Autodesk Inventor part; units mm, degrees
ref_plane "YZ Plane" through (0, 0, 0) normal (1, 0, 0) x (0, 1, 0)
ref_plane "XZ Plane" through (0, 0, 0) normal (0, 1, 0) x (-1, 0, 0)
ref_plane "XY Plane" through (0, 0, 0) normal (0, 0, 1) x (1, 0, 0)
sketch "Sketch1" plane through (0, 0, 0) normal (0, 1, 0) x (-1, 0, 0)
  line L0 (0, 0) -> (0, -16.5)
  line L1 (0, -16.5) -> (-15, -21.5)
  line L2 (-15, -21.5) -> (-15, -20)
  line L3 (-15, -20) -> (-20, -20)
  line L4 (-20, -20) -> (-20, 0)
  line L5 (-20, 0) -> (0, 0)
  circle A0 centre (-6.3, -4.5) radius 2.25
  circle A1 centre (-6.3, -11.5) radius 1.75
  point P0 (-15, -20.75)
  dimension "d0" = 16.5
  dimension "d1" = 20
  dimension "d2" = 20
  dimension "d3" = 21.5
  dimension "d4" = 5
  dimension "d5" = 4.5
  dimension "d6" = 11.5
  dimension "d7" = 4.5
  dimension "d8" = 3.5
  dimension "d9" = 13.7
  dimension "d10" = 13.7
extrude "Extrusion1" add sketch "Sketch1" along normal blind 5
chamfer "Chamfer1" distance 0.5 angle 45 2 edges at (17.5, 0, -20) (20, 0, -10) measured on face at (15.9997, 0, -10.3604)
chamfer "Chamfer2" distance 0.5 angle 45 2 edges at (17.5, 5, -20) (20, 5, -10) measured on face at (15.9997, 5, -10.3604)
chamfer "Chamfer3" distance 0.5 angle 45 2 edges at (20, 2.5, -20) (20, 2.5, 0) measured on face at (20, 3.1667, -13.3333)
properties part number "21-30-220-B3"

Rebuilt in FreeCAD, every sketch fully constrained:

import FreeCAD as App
import Part
import Sketcher
Q = App.Units.Quantity


def edges_at(feature, points):
    """Names of the edges that pass closest to the given points."""
    edges = feature.Shape.Edges
    near = lambda p: min(range(len(edges)), key=lambda i: edges[i].distToShape(Part.Vertex(*p))[0])
    return sorted({f"Edge{near(p) + 1}" for p in points})

doc = App.newDocument("Part")
body = doc.addObject("PartDesign::Body", "Body")

# Sketch on XZ plane
sketch1 = doc.addObject("Sketcher::SketchObject", "Sketch")
body.addObject(sketch1)
sketch1.AttachmentSupport = (doc.XZ_Plane, [""])
sketch1.MapMode = "FlatFace"
sketch1.addGeometry(Part.LineSegment(App.Vector(0, -16.5, 0), App.Vector(0, 0, 0)), False)
sketch1.addGeometry(Part.LineSegment(App.Vector(0, 0, 0), App.Vector(20, 0, 0)), False)
sketch1.addGeometry(Part.LineSegment(App.Vector(20, 0, 0), App.Vector(20, -20, 0)), False)
sketch1.addGeometry(Part.LineSegment(App.Vector(20, -20, 0), App.Vector(15, -20, 0)), False)
sketch1.addGeometry(Part.LineSegment(App.Vector(15, -20, 0), App.Vector(15, -21.5, 0)), False)
sketch1.addGeometry(Part.LineSegment(App.Vector(15, -21.5, 0), App.Vector(0, -16.5, 0)), False)
sketch1.addGeometry(Part.Circle(App.Vector(6.3, -11.5, 0), App.Vector(0, 0, 1), 1.8), False)
sketch1.addGeometry(Part.Circle(App.Vector(6.3, -4.5, 0), App.Vector(0, 0, 1), 2.2), False)
sketch1.addConstraint(Sketcher.Constraint("Coincident", 0, 2, 1, 1))
sketch1.addConstraint(Sketcher.Constraint("Coincident", 1, 2, 2, 1))
sketch1.addConstraint(Sketcher.Constraint("Coincident", 2, 2, 3, 1))
sketch1.addConstraint(Sketcher.Constraint("Coincident", 3, 2, 4, 1))
sketch1.addConstraint(Sketcher.Constraint("Coincident", 4, 2, 5, 1))
sketch1.addConstraint(Sketcher.Constraint("Coincident", 5, 2, 0, 1))
sketch1.addConstraint(Sketcher.Constraint("Vertical", 0))
sketch1.addConstraint(Sketcher.Constraint("Horizontal", 1))
sketch1.addConstraint(Sketcher.Constraint("Vertical", 2))
sketch1.addConstraint(Sketcher.Constraint("Horizontal", 3))
sketch1.addConstraint(Sketcher.Constraint("Vertical", 4))
sketch1.addConstraint(Sketcher.Constraint("Coincident", 0, 2, -1, 1))
sketch1.addConstraint(Sketcher.Constraint("Vertical", 6, 3, 7, 3))
sketch1.addConstraint(Sketcher.Constraint("Equal", 1, 2))
sketch1.addConstraint(Sketcher.Constraint("Diameter", 6, Q("3.5 mm")))
sketch1.addConstraint(Sketcher.Constraint("Diameter", 7, Q("4.5 mm")))
sketch1.addConstraint(Sketcher.Constraint("DistanceX", 1, 1, 1, 2, Q("20 mm")))
sketch1.addConstraint(Sketcher.Constraint("DistanceX", 3, 2, 3, 1, Q("5 mm")))
sketch1.addConstraint(Sketcher.Constraint("DistanceY", 0, 1, 0, 2, Q("16.5 mm")))
sketch1.addConstraint(Sketcher.Constraint("DistanceY", 5, 2, 6, 3, Q("5 mm")))
sketch1.addConstraint(Sketcher.Constraint("DistanceY", 4, 2, 5, 2, Q("5 mm")))
sketch1.addConstraint(Sketcher.Constraint("DistanceY", 7, 3, -1, 1, Q("4.5 mm")))
sketch1.addConstraint(Sketcher.Constraint("DistanceX", 7, 3, 1, 2, Q("13.7 mm")))
pad1 = doc.addObject("PartDesign::Pad", "Pad")
body.addObject(pad1)
pad1.Profile = sketch1
pad1.Length = 5
pad1.Reversed = True
doc.recompute()

chamfer = doc.addObject("PartDesign::Chamfer", "Chamfer")
body.addObject(chamfer)
chamfer.Base = (pad1, edges_at(pad1, [(17.5, 0, -20), (20, 0, -10)]))
chamfer.Size = 0.5
doc.recompute()

chamfer2 = doc.addObject("PartDesign::Chamfer", "Chamfer001")
body.addObject(chamfer2)
chamfer2.Base = (chamfer, edges_at(chamfer, [(17.5, 5, -20), (20, 5, -10)]))
chamfer2.Size = 0.5
doc.recompute()

chamfer3 = doc.addObject("PartDesign::Chamfer", "Chamfer002")
body.addObject(chamfer3)
chamfer3.Base = (chamfer2, edges_at(chamfer2, [(20, 2.5, -20), (20, 2.5, 0)]))
chamfer3.Size = 0.5

doc.recompute()
